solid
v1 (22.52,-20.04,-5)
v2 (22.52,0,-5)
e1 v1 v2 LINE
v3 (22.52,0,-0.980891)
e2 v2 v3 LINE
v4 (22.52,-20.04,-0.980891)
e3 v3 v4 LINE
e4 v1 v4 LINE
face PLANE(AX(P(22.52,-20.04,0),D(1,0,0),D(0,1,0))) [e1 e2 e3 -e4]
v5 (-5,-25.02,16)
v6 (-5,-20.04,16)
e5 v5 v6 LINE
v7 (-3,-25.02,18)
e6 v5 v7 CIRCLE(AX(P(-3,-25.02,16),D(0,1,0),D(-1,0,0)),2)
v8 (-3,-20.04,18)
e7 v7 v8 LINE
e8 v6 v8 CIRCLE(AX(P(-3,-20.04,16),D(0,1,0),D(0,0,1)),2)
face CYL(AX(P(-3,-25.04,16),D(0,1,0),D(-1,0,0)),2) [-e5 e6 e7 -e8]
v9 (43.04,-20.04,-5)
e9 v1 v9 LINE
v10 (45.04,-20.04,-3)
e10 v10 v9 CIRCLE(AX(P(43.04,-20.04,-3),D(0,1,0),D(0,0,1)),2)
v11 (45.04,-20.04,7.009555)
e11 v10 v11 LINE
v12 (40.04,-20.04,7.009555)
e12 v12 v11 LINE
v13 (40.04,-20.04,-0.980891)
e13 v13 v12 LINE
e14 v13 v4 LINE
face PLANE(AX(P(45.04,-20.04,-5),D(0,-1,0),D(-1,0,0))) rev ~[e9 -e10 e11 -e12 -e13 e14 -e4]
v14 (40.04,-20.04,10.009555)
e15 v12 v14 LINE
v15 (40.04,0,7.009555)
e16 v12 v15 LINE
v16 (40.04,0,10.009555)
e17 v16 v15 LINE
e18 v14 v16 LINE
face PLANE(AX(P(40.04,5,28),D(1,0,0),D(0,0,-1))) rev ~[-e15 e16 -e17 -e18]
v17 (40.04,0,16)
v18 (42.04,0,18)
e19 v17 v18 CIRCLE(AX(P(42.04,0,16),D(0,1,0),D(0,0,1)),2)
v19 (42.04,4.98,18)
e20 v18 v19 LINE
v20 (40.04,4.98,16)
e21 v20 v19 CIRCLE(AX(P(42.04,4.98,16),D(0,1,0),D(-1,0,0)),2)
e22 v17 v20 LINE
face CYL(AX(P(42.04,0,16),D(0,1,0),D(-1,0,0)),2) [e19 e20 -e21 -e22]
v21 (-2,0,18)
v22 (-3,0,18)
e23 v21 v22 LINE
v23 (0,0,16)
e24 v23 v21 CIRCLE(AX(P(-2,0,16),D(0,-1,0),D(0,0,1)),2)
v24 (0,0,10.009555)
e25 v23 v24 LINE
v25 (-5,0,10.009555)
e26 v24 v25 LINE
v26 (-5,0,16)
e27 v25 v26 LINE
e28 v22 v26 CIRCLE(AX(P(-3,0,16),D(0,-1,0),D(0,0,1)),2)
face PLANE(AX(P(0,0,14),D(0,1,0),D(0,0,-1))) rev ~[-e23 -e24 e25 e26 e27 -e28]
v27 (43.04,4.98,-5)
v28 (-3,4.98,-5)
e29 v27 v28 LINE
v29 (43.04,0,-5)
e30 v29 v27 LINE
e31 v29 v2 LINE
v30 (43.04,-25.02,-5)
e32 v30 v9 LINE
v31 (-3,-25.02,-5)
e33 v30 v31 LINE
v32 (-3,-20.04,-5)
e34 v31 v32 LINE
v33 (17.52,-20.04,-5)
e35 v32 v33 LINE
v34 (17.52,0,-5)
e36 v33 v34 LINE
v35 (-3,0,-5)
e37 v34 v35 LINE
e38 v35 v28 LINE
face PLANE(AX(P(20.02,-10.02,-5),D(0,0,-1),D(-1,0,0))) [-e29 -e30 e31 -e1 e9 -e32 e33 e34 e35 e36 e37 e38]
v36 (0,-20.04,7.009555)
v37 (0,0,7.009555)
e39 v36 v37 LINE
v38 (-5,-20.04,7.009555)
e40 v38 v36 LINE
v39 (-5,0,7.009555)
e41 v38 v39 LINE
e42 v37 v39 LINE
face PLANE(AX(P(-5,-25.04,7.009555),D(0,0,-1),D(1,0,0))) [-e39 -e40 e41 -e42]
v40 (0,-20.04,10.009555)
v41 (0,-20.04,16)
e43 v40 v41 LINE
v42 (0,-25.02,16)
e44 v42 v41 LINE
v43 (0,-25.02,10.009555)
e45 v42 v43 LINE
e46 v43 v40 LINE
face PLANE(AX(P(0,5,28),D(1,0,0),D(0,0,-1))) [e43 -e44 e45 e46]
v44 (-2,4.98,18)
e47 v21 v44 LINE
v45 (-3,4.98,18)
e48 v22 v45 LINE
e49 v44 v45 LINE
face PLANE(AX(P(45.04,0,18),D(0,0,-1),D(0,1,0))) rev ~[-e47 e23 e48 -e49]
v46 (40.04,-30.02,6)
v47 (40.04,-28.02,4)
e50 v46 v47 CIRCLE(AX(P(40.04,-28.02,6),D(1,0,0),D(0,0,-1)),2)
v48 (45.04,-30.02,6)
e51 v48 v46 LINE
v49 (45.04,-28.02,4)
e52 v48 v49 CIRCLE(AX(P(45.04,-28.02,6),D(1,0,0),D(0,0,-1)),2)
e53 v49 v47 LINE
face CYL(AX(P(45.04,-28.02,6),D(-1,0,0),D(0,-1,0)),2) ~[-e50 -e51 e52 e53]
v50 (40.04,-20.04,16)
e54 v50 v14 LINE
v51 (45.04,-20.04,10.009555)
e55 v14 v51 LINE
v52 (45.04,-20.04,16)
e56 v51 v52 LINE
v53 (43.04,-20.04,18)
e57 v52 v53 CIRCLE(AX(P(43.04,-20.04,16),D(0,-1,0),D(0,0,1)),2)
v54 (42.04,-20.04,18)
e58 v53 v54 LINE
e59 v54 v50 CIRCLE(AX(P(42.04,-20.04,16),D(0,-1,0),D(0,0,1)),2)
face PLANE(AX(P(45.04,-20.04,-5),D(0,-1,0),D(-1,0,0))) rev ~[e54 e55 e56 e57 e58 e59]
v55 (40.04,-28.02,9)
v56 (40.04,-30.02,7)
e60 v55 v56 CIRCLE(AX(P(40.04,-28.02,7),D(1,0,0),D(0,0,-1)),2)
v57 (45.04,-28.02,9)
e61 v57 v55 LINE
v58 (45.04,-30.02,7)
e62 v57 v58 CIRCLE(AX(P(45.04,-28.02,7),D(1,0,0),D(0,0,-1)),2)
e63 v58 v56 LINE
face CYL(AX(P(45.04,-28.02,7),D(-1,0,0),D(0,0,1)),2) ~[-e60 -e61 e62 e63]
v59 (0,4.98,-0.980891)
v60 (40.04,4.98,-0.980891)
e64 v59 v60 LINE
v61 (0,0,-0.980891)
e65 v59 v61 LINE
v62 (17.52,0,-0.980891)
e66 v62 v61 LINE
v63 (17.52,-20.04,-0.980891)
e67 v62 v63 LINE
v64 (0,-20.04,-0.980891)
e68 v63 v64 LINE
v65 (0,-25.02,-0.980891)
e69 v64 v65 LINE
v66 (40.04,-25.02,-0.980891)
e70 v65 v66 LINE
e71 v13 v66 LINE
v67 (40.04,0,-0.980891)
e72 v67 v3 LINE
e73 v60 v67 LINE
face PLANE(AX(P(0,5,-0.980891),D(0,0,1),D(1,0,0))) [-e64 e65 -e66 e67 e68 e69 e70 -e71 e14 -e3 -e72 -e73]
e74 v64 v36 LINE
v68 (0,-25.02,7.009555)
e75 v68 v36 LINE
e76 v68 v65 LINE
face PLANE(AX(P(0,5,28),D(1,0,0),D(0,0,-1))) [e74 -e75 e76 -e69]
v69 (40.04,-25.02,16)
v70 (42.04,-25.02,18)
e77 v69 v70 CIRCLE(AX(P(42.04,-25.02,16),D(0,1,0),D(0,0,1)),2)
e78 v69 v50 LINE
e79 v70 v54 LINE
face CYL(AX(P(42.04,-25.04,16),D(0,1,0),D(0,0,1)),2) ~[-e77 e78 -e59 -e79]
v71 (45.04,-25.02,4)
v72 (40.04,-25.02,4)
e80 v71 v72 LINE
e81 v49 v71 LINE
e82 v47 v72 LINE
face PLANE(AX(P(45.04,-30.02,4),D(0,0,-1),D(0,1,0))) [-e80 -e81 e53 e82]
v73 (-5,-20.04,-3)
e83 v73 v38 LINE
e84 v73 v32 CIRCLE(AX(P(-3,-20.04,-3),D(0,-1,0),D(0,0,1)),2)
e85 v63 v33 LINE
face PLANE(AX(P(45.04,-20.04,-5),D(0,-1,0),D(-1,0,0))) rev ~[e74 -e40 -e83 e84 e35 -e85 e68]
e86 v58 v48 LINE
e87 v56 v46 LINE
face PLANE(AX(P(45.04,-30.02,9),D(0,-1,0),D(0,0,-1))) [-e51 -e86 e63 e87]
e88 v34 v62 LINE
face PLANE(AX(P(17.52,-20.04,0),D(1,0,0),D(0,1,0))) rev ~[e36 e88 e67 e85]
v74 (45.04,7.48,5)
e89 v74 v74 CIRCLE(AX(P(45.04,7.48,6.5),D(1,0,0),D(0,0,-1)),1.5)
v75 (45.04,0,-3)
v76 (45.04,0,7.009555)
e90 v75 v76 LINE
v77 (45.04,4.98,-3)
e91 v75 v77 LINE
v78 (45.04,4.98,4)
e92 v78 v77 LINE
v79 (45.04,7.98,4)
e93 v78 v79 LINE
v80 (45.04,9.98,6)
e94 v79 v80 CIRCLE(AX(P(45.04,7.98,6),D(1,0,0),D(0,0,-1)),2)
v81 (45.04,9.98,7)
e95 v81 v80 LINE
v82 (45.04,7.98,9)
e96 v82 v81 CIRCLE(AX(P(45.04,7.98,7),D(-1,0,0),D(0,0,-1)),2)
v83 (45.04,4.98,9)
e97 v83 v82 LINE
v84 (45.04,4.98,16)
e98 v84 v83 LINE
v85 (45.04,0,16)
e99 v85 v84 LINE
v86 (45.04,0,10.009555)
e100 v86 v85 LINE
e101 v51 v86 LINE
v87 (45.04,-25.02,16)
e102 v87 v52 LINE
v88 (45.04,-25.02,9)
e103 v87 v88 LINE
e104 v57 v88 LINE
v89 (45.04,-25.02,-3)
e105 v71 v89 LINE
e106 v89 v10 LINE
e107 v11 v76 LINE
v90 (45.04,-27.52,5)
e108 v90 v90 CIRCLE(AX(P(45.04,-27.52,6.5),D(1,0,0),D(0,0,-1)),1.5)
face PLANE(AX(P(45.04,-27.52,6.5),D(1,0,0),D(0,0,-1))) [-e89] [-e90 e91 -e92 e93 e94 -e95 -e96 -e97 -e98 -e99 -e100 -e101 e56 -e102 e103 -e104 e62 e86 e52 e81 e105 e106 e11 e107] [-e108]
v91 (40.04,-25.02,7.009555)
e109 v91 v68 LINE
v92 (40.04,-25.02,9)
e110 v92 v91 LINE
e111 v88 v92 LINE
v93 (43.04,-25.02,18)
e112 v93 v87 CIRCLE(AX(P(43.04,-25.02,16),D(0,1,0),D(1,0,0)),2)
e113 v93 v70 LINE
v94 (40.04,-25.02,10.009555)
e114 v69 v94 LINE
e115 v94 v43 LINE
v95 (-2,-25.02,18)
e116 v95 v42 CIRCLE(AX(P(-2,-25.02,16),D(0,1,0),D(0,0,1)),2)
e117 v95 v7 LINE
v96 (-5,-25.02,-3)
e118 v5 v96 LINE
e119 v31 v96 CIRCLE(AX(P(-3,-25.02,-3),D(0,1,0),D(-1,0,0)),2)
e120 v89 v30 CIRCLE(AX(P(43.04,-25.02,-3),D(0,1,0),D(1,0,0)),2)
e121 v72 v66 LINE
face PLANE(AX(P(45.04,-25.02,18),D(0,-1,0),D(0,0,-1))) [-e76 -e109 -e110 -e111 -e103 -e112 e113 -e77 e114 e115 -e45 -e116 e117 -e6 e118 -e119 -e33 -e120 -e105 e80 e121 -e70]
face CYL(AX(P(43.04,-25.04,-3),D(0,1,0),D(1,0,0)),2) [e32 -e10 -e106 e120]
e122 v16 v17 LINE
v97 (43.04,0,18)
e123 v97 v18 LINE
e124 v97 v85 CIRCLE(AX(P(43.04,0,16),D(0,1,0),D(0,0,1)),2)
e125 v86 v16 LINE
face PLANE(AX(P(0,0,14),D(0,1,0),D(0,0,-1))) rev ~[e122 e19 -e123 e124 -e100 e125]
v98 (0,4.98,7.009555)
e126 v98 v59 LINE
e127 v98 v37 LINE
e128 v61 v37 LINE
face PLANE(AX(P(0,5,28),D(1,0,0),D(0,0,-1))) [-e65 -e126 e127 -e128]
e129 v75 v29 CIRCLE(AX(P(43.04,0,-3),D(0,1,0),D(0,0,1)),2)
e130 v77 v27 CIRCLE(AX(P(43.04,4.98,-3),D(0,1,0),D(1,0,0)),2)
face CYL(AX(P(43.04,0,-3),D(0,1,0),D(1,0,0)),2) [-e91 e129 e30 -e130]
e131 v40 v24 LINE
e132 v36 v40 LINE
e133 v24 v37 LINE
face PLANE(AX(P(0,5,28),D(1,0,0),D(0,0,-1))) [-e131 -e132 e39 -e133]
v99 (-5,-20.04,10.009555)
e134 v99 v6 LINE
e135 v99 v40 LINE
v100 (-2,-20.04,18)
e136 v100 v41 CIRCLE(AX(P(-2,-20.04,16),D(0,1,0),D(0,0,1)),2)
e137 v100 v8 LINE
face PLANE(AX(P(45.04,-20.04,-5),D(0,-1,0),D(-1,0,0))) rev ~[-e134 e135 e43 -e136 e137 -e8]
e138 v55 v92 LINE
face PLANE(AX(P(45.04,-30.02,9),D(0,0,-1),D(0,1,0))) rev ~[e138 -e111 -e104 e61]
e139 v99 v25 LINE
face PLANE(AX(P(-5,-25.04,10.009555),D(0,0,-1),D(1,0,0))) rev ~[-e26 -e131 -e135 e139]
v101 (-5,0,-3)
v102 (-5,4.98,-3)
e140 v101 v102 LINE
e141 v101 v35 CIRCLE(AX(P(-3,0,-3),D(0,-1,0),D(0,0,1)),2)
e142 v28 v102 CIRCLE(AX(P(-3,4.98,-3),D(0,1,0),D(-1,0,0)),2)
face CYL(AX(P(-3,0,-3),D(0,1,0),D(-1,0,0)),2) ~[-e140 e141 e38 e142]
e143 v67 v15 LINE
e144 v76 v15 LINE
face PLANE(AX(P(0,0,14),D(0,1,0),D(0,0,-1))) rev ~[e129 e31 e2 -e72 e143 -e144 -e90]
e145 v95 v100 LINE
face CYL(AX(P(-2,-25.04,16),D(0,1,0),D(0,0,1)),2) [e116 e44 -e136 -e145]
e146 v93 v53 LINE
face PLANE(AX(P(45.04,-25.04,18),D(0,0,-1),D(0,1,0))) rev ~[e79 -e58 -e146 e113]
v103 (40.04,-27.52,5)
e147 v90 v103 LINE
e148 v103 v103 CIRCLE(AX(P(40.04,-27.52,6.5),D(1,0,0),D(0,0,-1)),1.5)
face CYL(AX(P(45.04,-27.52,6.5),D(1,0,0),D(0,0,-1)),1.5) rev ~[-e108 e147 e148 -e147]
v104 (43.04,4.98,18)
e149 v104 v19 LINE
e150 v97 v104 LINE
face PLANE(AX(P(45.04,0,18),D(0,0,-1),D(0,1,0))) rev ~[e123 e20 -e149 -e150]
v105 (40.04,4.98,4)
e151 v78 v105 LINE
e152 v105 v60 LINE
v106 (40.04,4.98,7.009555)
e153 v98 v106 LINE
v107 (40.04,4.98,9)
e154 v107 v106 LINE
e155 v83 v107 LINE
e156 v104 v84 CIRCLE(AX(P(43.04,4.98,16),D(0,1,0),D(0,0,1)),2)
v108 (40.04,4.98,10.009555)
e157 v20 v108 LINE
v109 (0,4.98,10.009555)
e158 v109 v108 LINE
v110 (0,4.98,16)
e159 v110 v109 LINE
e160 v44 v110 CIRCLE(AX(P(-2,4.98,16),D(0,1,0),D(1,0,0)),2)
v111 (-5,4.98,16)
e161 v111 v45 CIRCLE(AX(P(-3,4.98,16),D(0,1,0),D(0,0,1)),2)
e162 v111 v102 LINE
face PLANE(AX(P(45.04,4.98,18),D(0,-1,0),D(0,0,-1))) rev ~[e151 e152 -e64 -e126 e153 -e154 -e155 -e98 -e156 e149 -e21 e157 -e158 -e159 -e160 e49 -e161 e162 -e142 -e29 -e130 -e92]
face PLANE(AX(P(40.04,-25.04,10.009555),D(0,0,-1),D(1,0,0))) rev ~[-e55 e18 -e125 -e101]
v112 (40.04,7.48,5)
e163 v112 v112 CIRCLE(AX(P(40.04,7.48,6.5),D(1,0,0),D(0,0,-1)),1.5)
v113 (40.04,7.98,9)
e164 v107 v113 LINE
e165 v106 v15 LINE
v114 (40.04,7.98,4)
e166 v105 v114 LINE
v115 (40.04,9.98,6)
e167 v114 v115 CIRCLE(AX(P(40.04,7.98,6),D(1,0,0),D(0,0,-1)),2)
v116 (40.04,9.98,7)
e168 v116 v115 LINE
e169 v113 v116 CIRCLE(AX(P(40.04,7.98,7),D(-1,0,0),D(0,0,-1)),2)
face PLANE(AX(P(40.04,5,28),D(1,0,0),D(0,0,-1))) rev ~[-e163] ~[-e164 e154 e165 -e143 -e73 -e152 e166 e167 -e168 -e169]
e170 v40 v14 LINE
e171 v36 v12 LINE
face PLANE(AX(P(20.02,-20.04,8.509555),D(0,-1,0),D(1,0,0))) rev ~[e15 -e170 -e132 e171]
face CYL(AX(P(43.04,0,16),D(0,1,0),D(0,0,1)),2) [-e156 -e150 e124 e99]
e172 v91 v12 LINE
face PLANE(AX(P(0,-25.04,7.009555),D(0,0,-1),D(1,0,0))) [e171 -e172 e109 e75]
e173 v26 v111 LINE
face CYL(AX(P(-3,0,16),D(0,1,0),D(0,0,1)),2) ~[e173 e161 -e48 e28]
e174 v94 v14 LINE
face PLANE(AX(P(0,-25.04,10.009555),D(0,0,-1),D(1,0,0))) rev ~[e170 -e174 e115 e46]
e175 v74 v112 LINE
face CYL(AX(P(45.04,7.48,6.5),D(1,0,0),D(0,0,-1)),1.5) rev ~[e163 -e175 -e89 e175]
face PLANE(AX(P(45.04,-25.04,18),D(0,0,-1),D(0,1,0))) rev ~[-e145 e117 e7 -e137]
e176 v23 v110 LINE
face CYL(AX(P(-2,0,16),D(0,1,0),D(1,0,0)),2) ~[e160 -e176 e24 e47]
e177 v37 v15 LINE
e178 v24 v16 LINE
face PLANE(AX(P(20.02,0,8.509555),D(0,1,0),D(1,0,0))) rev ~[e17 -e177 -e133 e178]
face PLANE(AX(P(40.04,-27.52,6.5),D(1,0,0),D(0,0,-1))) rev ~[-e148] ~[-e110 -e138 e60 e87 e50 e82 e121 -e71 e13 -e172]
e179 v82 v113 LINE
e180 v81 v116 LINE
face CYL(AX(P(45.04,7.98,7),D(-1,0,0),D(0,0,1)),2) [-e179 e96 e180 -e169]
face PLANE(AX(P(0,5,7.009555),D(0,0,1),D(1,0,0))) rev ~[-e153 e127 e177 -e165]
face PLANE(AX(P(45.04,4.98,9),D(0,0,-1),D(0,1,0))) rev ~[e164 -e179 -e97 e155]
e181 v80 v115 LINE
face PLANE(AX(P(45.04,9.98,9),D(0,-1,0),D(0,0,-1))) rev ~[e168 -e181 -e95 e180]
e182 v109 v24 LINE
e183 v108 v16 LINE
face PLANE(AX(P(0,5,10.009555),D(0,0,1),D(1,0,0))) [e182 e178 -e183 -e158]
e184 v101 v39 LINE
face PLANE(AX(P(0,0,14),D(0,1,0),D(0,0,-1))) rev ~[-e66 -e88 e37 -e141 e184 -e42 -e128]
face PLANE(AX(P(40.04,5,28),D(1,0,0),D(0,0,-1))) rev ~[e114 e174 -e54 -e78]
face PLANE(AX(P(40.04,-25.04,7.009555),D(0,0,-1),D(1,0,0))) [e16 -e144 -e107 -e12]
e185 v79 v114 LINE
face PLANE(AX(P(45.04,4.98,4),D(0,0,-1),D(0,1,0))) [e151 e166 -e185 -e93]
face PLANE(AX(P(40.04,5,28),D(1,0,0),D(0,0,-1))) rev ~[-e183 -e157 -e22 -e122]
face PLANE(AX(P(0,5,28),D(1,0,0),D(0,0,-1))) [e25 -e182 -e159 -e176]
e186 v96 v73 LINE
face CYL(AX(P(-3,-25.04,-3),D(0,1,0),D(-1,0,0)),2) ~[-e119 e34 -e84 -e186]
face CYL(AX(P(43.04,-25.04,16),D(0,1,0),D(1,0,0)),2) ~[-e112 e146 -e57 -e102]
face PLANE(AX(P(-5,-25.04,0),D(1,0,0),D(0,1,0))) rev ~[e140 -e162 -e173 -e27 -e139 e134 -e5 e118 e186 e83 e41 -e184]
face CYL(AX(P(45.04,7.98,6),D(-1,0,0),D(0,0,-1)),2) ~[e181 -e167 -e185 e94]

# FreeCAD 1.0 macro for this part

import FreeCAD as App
import Part
import Sketcher
from FreeCAD import Vector
Q = App.Units.Quantity


def edges_at(feature, points):
    """Names of the edges that pass closest to the given points."""
    edges = feature.Shape.Edges
    near = lambda p: min(range(len(edges)), key=lambda i: edges[i].distToShape(Part.Vertex(*p))[0])
    return sorted({f"Edge{near(p) + 1}" for p in points})


def add_polygon(sketch, points):
    """Adds a closed chain of lines whose ends are joined by coincident constraints."""
    first, n = sketch.GeometryCount, len(points)
    for a, b in zip(points, points[1:] + points[:1]):
        sketch.addGeometry(Part.LineSegment(App.Vector(*a, 0), App.Vector(*b, 0)), False)
    for i in range(n):
        sketch.addConstraint(Sketcher.Constraint("Coincident", first + i, 2, first + (i + 1) % n, 1))

doc = App.newDocument("Part")
body = doc.addObject("PartDesign::Body", "Body")

# Sketch on XY plane
sketch1 = body.newObject("Sketcher::SketchObject", "Sketch")
sketch1.AttachmentSupport = (doc.getObject("XY_Plane"), [""])
sketch1.MapMode = "FlatFace"
add_polygon(sketch1, [(-5, 5), (-5, -25), (45, -25), (45, 5)])  # lines 0-3
add_polygon(sketch1, [(18, -20), (0, -20), (0, 0), (18, 0)])  # lines 4-7
add_polygon(sketch1, [(40, -20), (23, -20), (23, 0), (40, 0)])  # lines 8-11
sketch1.addConstraint(Sketcher.Constraint("Vertical", 0))
sketch1.addConstraint(Sketcher.Constraint("Horizontal", 1))
sketch1.addConstraint(Sketcher.Constraint("Vertical", 2))
sketch1.addConstraint(Sketcher.Constraint("Horizontal", 3))
sketch1.addConstraint(Sketcher.Constraint("Horizontal", 4))
sketch1.addConstraint(Sketcher.Constraint("Vertical", 5))
sketch1.addConstraint(Sketcher.Constraint("Horizontal", 6))
sketch1.addConstraint(Sketcher.Constraint("Vertical", 7))
sketch1.addConstraint(Sketcher.Constraint("Horizontal", 8))
sketch1.addConstraint(Sketcher.Constraint("Vertical", 9))
sketch1.addConstraint(Sketcher.Constraint("Horizontal", 10))
sketch1.addConstraint(Sketcher.Constraint("Vertical", 11))
sketch1.addConstraint(Sketcher.Constraint("Coincident", 5, 2, -1, 1))
sketch1.addConstraint(Sketcher.Constraint("PointOnObject", 9, 2, -1))
sketch1.addConstraint(Sketcher.Constraint("Horizontal", 7, 2, 8, 2))
sketch1.addConstraint(Sketcher.Constraint("Equal", 6, 8))
sketch1.addConstraint(Sketcher.Constraint("DistanceX", 0, 2, -1, 1, Q("5 mm")))
sketch1.addConstraint(Sketcher.Constraint("DistanceY", -1, 1, 2, 2, Q("5 mm")))
sketch1.addConstraint(Sketcher.Constraint("DistanceY", 0, 2, 4, 2, Q("5 mm")))
sketch1.addConstraint(Sketcher.Constraint("DistanceX", 7, 2, 8, 2, Q("5 mm")))
sketch1.addConstraint(Sketcher.Constraint("DistanceX", 10, 2, 2, 2, Q("5 mm")))
sketch1.addConstraint(Sketcher.Constraint("DistanceX", 1, 1, 1, 2, Q("50.04 mm")))
sketch1.addConstraint(Sketcher.Constraint("DistanceY", 0, 2, 0, 1, Q("30.04 mm")))
pad1 = body.newObject("PartDesign::Pad", "Pad")
pad1.Profile = sketch1
pad1.Length = 28

# Sketch on XY plane
sketch2 = body.newObject("Sketcher::SketchObject", "Sketch001")
sketch2.AttachmentSupport = (doc.getObject("XY_Plane"), [""])
sketch2.MapMode = "FlatFace"
add_polygon(sketch2, [(45, 5), (45, -25), (-5, -25), (-5, 5)])  # lines 0-3
add_polygon(sketch2, [(23, -20), (40, -20), (40, 0), (23, 0)])  # lines 4-7
add_polygon(sketch2, [(0, -20), (18, -20), (18, 0), (0, 0)])  # lines 8-11
sketch2.addConstraint(Sketcher.Constraint("Vertical", 0))
sketch2.addConstraint(Sketcher.Constraint("Horizontal", 1))
sketch2.addConstraint(Sketcher.Constraint("Vertical", 2))
sketch2.addConstraint(Sketcher.Constraint("Horizontal", 3))
sketch2.addConstraint(Sketcher.Constraint("Horizontal", 4))
sketch2.addConstraint(Sketcher.Constraint("Vertical", 5))
sketch2.addConstraint(Sketcher.Constraint("Horizontal", 6))
sketch2.addConstraint(Sketcher.Constraint("Vertical", 7))
sketch2.addConstraint(Sketcher.Constraint("Horizontal", 8))
sketch2.addConstraint(Sketcher.Constraint("Vertical", 9))
sketch2.addConstraint(Sketcher.Constraint("Horizontal", 10))
sketch2.addConstraint(Sketcher.Constraint("Vertical", 11))
sketch2.addConstraint(Sketcher.Constraint("Coincident", 10, 2, -1, 1))
sketch2.addConstraint(Sketcher.Constraint("PointOnObject", 5, 2, -1))
sketch2.addConstraint(Sketcher.Constraint("Horizontal", 7, 2, 8, 2))
sketch2.addConstraint(Sketcher.Constraint("Equal", 6, 8))
sketch2.addConstraint(Sketcher.Constraint("DistanceX", 1, 2, -1, 1, Q("5 mm")))
sketch2.addConstraint(Sketcher.Constraint("DistanceY", -1, 1, 2, 2, Q("5 mm")))
sketch2.addConstraint(Sketcher.Constraint("DistanceX", 4, 2, 0, 2, Q("5 mm")))
sketch2.addConstraint(Sketcher.Constraint("DistanceY", 0, 2, 4, 2, Q("5 mm")))
sketch2.addConstraint(Sketcher.Constraint("DistanceX", 8, 2, 7, 2, Q("5 mm")))
sketch2.addConstraint(Sketcher.Constraint("DistanceX", 1, 2, 1, 1, Q("50.04 mm")))
sketch2.addConstraint(Sketcher.Constraint("DistanceY", 0, 2, 0, 1, Q("30.04 mm")))
pad2 = body.newObject("PartDesign::Pad", "Pad001")
pad2.Profile = sketch2
pad2.Length = 5
pad2.Reversed = True

# Sketch on XY plane
sketch3 = body.newObject("Sketcher::SketchObject", "Sketch002")
sketch3.AttachmentSupport = (doc.getObject("XY_Plane"), [""])
sketch3.MapMode = "FlatFace"
sketch3.AttachmentOffset = App.Placement(Vector(0, 0, 28), App.Rotation())
add_polygon(sketch3, [(18, 0), (18, -20), (23, -20), (23, 0)])  # lines 0-3
sketch3.addConstraint(Sketcher.Constraint("Vertical", 0))
sketch3.addConstraint(Sketcher.Constraint("Horizontal", 1))
sketch3.addConstraint(Sketcher.Constraint("Vertical", 2))
sketch3.addConstraint(Sketcher.Constraint("Horizontal", 3))
sketch3.addConstraint(Sketcher.Constraint("PointOnObject", 2, 2, -1))
sketch3.addConstraint(Sketcher.Constraint("DistanceX", 1, 1, 1, 2, Q("5 mm")))
sketch3.addConstraint(Sketcher.Constraint("DistanceY", 0, 2, 0, 1, Q("20.04 mm")))
sketch3.addConstraint(Sketcher.Constraint("DistanceX", -1, 1, 0, 2, Q("17.52 mm")))
pocket1 = body.newObject("PartDesign::Pocket", "Pocket")
pocket1.Profile = sketch3
pocket1.Length = 27

# Sketch on XY plane
sketch4 = body.newObject("Sketcher::SketchObject", "Sketch003")
sketch4.AttachmentSupport = (doc.getObject("XY_Plane"), [""])
sketch4.MapMode = "FlatFace"
sketch4.AttachmentOffset = App.Placement(Vector(0, 0, -5), App.Rotation())
add_polygon(sketch4, [(45, 0), (45, -20), (40, -20), (40, 0)])  # lines 0-3
add_polygon(sketch4, [(0, 0), (0, -20), (-5, -20), (-5, 0)])  # lines 4-7
sketch4.addConstraint(Sketcher.Constraint("Vertical", 0))
sketch4.addConstraint(Sketcher.Constraint("Horizontal", 1))
sketch4.addConstraint(Sketcher.Constraint("Vertical", 2))
sketch4.addConstraint(Sketcher.Constraint("Horizontal", 3))
sketch4.addConstraint(Sketcher.Constraint("Vertical", 4))
sketch4.addConstraint(Sketcher.Constraint("Horizontal", 5))
sketch4.addConstraint(Sketcher.Constraint("Vertical", 6))
sketch4.addConstraint(Sketcher.Constraint("Horizontal", 7))
sketch4.addConstraint(Sketcher.Constraint("Coincident", 7, 2, -1, 1))
sketch4.addConstraint(Sketcher.Constraint("PointOnObject", 2, 2, -1))
sketch4.addConstraint(Sketcher.Constraint("Horizontal", 1, 2, 4, 2))
sketch4.addConstraint(Sketcher.Constraint("Equal", 3, 5))
sketch4.addConstraint(Sketcher.Constraint("DistanceX", 1, 2, 1, 1, Q("5 mm")))
sketch4.addConstraint(Sketcher.Constraint("DistanceY", 0, 2, 0, 1, Q("20.04 mm")))
sketch4.addConstraint(Sketcher.Constraint("DistanceX", -1, 1, 0, 2, Q("45.04 mm")))
pocket2 = body.newObject("PartDesign::Pocket", "Pocket001")
pocket2.Profile = sketch4
pocket2.Length = 27
pocket2.Reversed = True

# Sketch on XZ plane
sketch5 = body.newObject("Sketcher::SketchObject", "Sketch004")
sketch5.AttachmentSupport = (doc.getObject("XZ_Plane"), [""])
sketch5.MapMode = "FlatFace"
sketch5.AttachmentOffset = App.Placement(Vector(0, 0, -5), App.Rotation())
add_polygon(sketch5, [(0, -1), (0, 28), (40, 28), (40, -1)])  # lines 0-3
sketch5.addConstraint(Sketcher.Constraint("Vertical", 0))
sketch5.addConstraint(Sketcher.Constraint("Horizontal", 1))
sketch5.addConstraint(Sketcher.Constraint("Vertical", 2))
sketch5.addConstraint(Sketcher.Constraint("Horizontal", 3))
sketch5.addConstraint(Sketcher.Constraint("PointOnObject", 0, 2, -2))
sketch5.addConstraint(Sketcher.Constraint("DistanceY", -1, 1, 0, 2, Q("28 mm")))
sketch5.addConstraint(Sketcher.Constraint("DistanceX", 1, 1, 1, 2, Q("40.04 mm")))
sketch5.addConstraint(Sketcher.Constraint("DistanceY", 0, 1, 0, 2, Q("28.980891 mm")))
pocket3 = body.newObject("PartDesign::Pocket", "Pocket002")
pocket3.Profile = sketch5
pocket3.Length = 47
pocket3.Reversed = True

# Sketch on YZ plane
sketch6 = body.newObject("Sketcher::SketchObject", "Sketch005")
sketch6.AttachmentSupport = (doc.getObject("YZ_Plane"), [""])
sketch6.MapMode = "FlatFace"
add_polygon(sketch6, [(5, 14), (0, 14), (0, 9), (5, 9)])  # lines 0-3
add_polygon(sketch6, [(-20, 14), (-25, 14), (-25, 9), (-20, 9)])  # lines 4-7
sketch6.addConstraint(Sketcher.Constraint("Horizontal", 0))
sketch6.addConstraint(Sketcher.Constraint("Vertical", 1))
sketch6.addConstraint(Sketcher.Constraint("Horizontal", 2))
sketch6.addConstraint(Sketcher.Constraint("Vertical", 3))
sketch6.addConstraint(Sketcher.Constraint("Horizontal", 4))
sketch6.addConstraint(Sketcher.Constraint("Vertical", 5))
sketch6.addConstraint(Sketcher.Constraint("Horizontal", 6))
sketch6.addConstraint(Sketcher.Constraint("Vertical", 7))
sketch6.addConstraint(Sketcher.Constraint("PointOnObject", 0, 2, -2))
sketch6.addConstraint(Sketcher.Constraint("Horizontal", 3, 2, 4, 2))
sketch6.addConstraint(Sketcher.Constraint("Horizontal", 2, 2, 5, 2))
sketch6.addConstraint(Sketcher.Constraint("Equal", 2, 4))
sketch6.addConstraint(Sketcher.Constraint("Equal", 6, 1))
sketch6.addConstraint(Sketcher.Constraint("DistanceX", 0, 2, 0, 1, Q("5 mm")))
sketch6.addConstraint(Sketcher.Constraint("DistanceY", -1, 1, 0, 2, Q("14 mm")))
sketch6.addConstraint(Sketcher.Constraint("DistanceX", 4, 2, -1, 1, Q("25.04 mm")))
pad3 = body.newObject("PartDesign::Pad", "Pad002")
pad3.Profile = sketch6
pad3.Length = 45

# Sketch on YZ plane
sketch7 = body.newObject("Sketcher::SketchObject", "Sketch006")
sketch7.AttachmentSupport = (doc.getObject("YZ_Plane"), [""])
sketch7.MapMode = "FlatFace"
sketch7.AttachmentOffset = App.Placement(Vector(0, 0, 45.04), App.Rotation())
add_polygon(sketch7, [(-25, 28), (-25, 18), (-20, 18), (-20, 22), (0, 22), (0, 18), (5, 18), (5, 28)])  # lines 0-7
sketch7.addConstraint(Sketcher.Constraint("Vertical", 0))
sketch7.addConstraint(Sketcher.Constraint("Horizontal", 1))
sketch7.addConstraint(Sketcher.Constraint("Vertical", 2))
sketch7.addConstraint(Sketcher.Constraint("Horizontal", 3))
sketch7.addConstraint(Sketcher.Constraint("Vertical", 4))
sketch7.addConstraint(Sketcher.Constraint("Horizontal", 5))
sketch7.addConstraint(Sketcher.Constraint("Vertical", 6))
sketch7.addConstraint(Sketcher.Constraint("Horizontal", 7))
sketch7.addConstraint(Sketcher.Constraint("PointOnObject", 3, 2, -2))
sketch7.addConstraint(Sketcher.Constraint("Horizontal", 1, 2, 4, 2))
sketch7.addConstraint(Sketcher.Constraint("Equal", 1, 5))
sketch7.addConstraint(Sketcher.Constraint("DistanceX", 1, 1, 1, 2, Q("5 mm")))
sketch7.addConstraint(Sketcher.Constraint("DistanceY", 0, 2, 0, 1, Q("10 mm")))
sketch7.addConstraint(Sketcher.Constraint("DistanceY", 2, 1, 2, 2, Q("4 mm")))
sketch7.addConstraint(Sketcher.Constraint("DistanceY", -1, 1, 0, 2, Q("18 mm")))
sketch7.addConstraint(Sketcher.Constraint("DistanceX", 3, 1, 3, 2, Q("20.04 mm")))
pocket4 = body.newObject("PartDesign::Pocket", "Pocket003")
pocket4.Profile = sketch7
pocket4.Length = 66

# Sketch on XZ plane
sketch8 = body.newObject("Sketcher::SketchObject", "Sketch007")
sketch8.AttachmentSupport = (doc.getObject("XZ_Plane"), [""])
sketch8.MapMode = "FlatFace"
sketch8.AttachmentOffset = App.Placement(Vector(0, 0, 25.04), App.Rotation())
add_polygon(sketch8, [(-5, 10), (-5, 7), (0, 7), (0, 10)])  # lines 0-3
add_polygon(sketch8, [(40, 10), (40, 7), (45, 7), (45, 10)])  # lines 4-7
sketch8.addConstraint(Sketcher.Constraint("Vertical", 0))
sketch8.addConstraint(Sketcher.Constraint("Horizontal", 1))
sketch8.addConstraint(Sketcher.Constraint("Vertical", 2))
sketch8.addConstraint(Sketcher.Constraint("Horizontal", 3))
sketch8.addConstraint(Sketcher.Constraint("Vertical", 4))
sketch8.addConstraint(Sketcher.Constraint("Horizontal", 5))
sketch8.addConstraint(Sketcher.Constraint("Vertical", 6))
sketch8.addConstraint(Sketcher.Constraint("Horizontal", 7))
sketch8.addConstraint(Sketcher.Constraint("PointOnObject", 1, 2, -2))
sketch8.addConstraint(Sketcher.Constraint("Horizontal", 1, 2, 4, 2))
sketch8.addConstraint(Sketcher.Constraint("Horizontal", 3, 2, 6, 2))
sketch8.addConstraint(Sketcher.Constraint("Equal", 3, 5))
sketch8.addConstraint(Sketcher.Constraint("DistanceX", 1, 1, 1, 2, Q("5 mm")))
sketch8.addConstraint(Sketcher.Constraint("DistanceY", 0, 2, 0, 1, Q("3 mm")))
sketch8.addConstraint(Sketcher.Constraint("DistanceX", -1, 1, 4, 2, Q("40.04 mm")))
sketch8.addConstraint(Sketcher.Constraint("DistanceY", -1, 1, 0, 2, Q("7.009555 mm")))
pad4 = body.newObject("PartDesign::Pad", "Pad003")
pad4.Profile = sketch8
pad4.Length = 29
pad4.Reversed = True

# Sketch on XZ plane
sketch9 = body.newObject("Sketcher::SketchObject", "Sketch008")
sketch9.AttachmentSupport = (doc.getObject("XZ_Plane"), [""])
sketch9.MapMode = "FlatFace"
sketch9.AttachmentOffset = App.Placement(Vector(0, 0, 25.04), App.Rotation())
add_polygon(sketch9, [(40, 9), (40, 14), (0, 14), (0, 9)])  # lines 0-3
sketch9.addConstraint(Sketcher.Constraint("Vertical", 0))
sketch9.addConstraint(Sketcher.Constraint("Horizontal", 1))
sketch9.addConstraint(Sketcher.Constraint("Vertical", 2))
sketch9.addConstraint(Sketcher.Constraint("Horizontal", 3))
sketch9.addConstraint(Sketcher.Constraint("PointOnObject", 1, 2, -2))
sketch9.addConstraint(Sketcher.Constraint("DistanceY", 0, 1, 0, 2, Q("5 mm")))
sketch9.addConstraint(Sketcher.Constraint("DistanceY", -1, 1, 0, 2, Q("14 mm")))
sketch9.addConstraint(Sketcher.Constraint("DistanceX", 1, 2, 1, 1, Q("40.04 mm")))
pocket5 = body.newObject("PartDesign::Pocket", "Pocket004")
pocket5.Profile = sketch9
pocket5.Length = 51

# Sketch on XZ plane
sketch10 = body.newObject("Sketcher::SketchObject", "Sketch009")
sketch10.AttachmentSupport = (doc.getObject("XZ_Plane"), [""])
sketch10.MapMode = "FlatFace"
sketch10.AttachmentOffset = App.Placement(Vector(0, 0, 25.04), App.Rotation())
add_polygon(sketch10, [(0, 10), (0, 7), (40, 7), (40, 10)])  # lines 0-3
sketch10.addConstraint(Sketcher.Constraint("Vertical", 0))
sketch10.addConstraint(Sketcher.Constraint("Horizontal", 1))
sketch10.addConstraint(Sketcher.Constraint("Vertical", 2))
sketch10.addConstraint(Sketcher.Constraint("Horizontal", 3))
sketch10.addConstraint(Sketcher.Constraint("PointOnObject", 0, 2, -2))
sketch10.addConstraint(Sketcher.Constraint("DistanceY", 0, 2, 0, 1, Q("3 mm")))
sketch10.addConstraint(Sketcher.Constraint("DistanceX", 1, 1, 1, 2, Q("40.04 mm")))
sketch10.addConstraint(Sketcher.Constraint("DistanceY", -1, 1, 0, 2, Q("7.009555 mm")))
pad5 = body.newObject("PartDesign::Pad", "Pad004")
pad5.Profile = sketch10
pad5.Length = 5
pad5.Reversed = True

# Sketch on XZ plane
sketch11 = body.newObject("Sketcher::SketchObject", "Sketch010")
sketch11.AttachmentSupport = (doc.getObject("XZ_Plane"), [""])
sketch11.MapMode = "FlatFace"
sketch11.AttachmentOffset = App.Placement(Vector(0, 0, -5), App.Rotation())
add_polygon(sketch11, [(0, 7), (0, 10), (40, 10), (40, 7)])  # lines 0-3
sketch11.addConstraint(Sketcher.Constraint("Vertical", 0))
sketch11.addConstraint(Sketcher.Constraint("Horizontal", 1))
sketch11.addConstraint(Sketcher.Constraint("Vertical", 2))
sketch11.addConstraint(Sketcher.Constraint("Horizontal", 3))
sketch11.addConstraint(Sketcher.Constraint("PointOnObject", 0, 2, -2))
sketch11.addConstraint(Sketcher.Constraint("DistanceY", 0, 1, 0, 2, Q("3 mm")))
sketch11.addConstraint(Sketcher.Constraint("DistanceX", 1, 1, 1, 2, Q("40.04 mm")))
sketch11.addConstraint(Sketcher.Constraint("DistanceY", -1, 1, 0, 2, Q("10.009555 mm")))
pad6 = body.newObject("PartDesign::Pad", "Pad005")
pad6.Profile = sketch11
pad6.Length = 5
doc.recompute()

fillet = body.newObject("PartDesign::Fillet", "Fillet")
fillet.Base = (pad6, edges_at(pad6, [
    (40.04, 2.5, 18),
    (0, 2.5, 18),
    (-5, 2.5, 18),
    (40.04, -22.54, 18),
    (0, -22.54, 18),
    (-5, -22.54, 18),
    (45.04, -22.54, 18),
    (45.04, 2.5, 18),
    (45.04, 2.5, -5),
    (-5, -22.54, -5),
    (45.04, -22.54, -5),
    (-5, 2.5, -5),
]))
fillet.Radius = 2

# Sketch on YZ plane
sketch12 = body.newObject("Sketcher::SketchObject", "Sketch011")
sketch12.AttachmentSupport = (doc.getObject("YZ_Plane"), [""])
sketch12.MapMode = "FlatFace"
sketch12.AttachmentOffset = App.Placement(Vector(0, 0, 45.04), App.Rotation())
add_polygon(sketch12, [(-25.02, 18), (-25.04, 18), (-25.04, -5), (-25.02, -5)])  # lines 0-3
add_polygon(sketch12, [(5, 18), (4.98, 18), (4.98, -5), (5, -5)])  # lines 4-7
sketch12.addConstraint(Sketcher.Constraint("Horizontal", 0))
sketch12.addConstraint(Sketcher.Constraint("Vertical", 1))
sketch12.addConstraint(Sketcher.Constraint("Horizontal", 2))
sketch12.addConstraint(Sketcher.Constraint("Vertical", 3))
sketch12.addConstraint(Sketcher.Constraint("Horizontal", 4))
sketch12.addConstraint(Sketcher.Constraint("Vertical", 5))
sketch12.addConstraint(Sketcher.Constraint("Horizontal", 6))
sketch12.addConstraint(Sketcher.Constraint("Vertical", 7))
sketch12.addConstraint(Sketcher.Constraint("Horizontal", 3, 2, 4, 2))
sketch12.addConstraint(Sketcher.Constraint("Horizontal", 2, 2, 5, 2))
sketch12.addConstraint(Sketcher.Constraint("Equal", 2, 4))
sketch12.addConstraint(Sketcher.Constraint("DistanceY", 1, 2, 1, 1, Q("23 mm")))
sketch12.addConstraint(Sketcher.Constraint("DistanceY", -1, 1, 0, 2, Q("18 mm")))
sketch12.addConstraint(Sketcher.Constraint("DistanceX", -1, 1, 6, 2, Q("5 mm")))
sketch12.addConstraint(Sketcher.Constraint("DistanceX", 3, 2, 4, 2, Q("30 mm")))
sketch12.addConstraint(Sketcher.Constraint("DistanceX", 0, 2, 0, 1, Q("0.02 mm")))
pocket6 = body.newObject("PartDesign::Pocket", "Pocket005")
pocket6.Profile = sketch12
pocket6.Length = 87

# Sketch on YZ plane
sketch13 = body.newObject("Sketcher::SketchObject", "Sketch012")
sketch13.AttachmentSupport = (doc.getObject("YZ_Plane"), [""])
sketch13.MapMode = "FlatFace"
sketch13.AttachmentOffset = App.Placement(Vector(0, 0, 45.04), App.Rotation())
add_polygon(sketch13, [(-25, 9), (-30, 9), (-30, 4), (-25, 4)])  # lines 0-3
sketch13.addGeometry(Part.Circle(Vector(-27.5, 6.5, 0), Vector(0, 0, 1), 1.5), False)  # 4
add_polygon(sketch13, [(10, 9), (5, 9), (5, 4), (10, 4)])  # lines 5-8
sketch13.addGeometry(Part.Circle(Vector(7.5, 6.5, 0), Vector(0, 0, 1), 1.5), False)  # 9
sketch13.addConstraint(Sketcher.Constraint("Horizontal", 0))
sketch13.addConstraint(Sketcher.Constraint("Vertical", 1))
sketch13.addConstraint(Sketcher.Constraint("Horizontal", 2))
sketch13.addConstraint(Sketcher.Constraint("Vertical", 3))
sketch13.addConstraint(Sketcher.Constraint("Horizontal", 5))
sketch13.addConstraint(Sketcher.Constraint("Vertical", 6))
sketch13.addConstraint(Sketcher.Constraint("Horizontal", 7))
sketch13.addConstraint(Sketcher.Constraint("Vertical", 8))
sketch13.addConstraint(Sketcher.Constraint("Equal", 4, 9))
sketch13.addConstraint(Sketcher.Constraint("Horizontal", 4, 3, 9, 3))
sketch13.addConstraint(Sketcher.Constraint("Horizontal", 3, 2, 5, 2))
sketch13.addConstraint(Sketcher.Constraint("Horizontal", 2, 2, 6, 2))
sketch13.addConstraint(Sketcher.Constraint("Equal", 2, 5))
sketch13.addConstraint(Sketcher.Constraint("Equal", 7, 1))
sketch13.addConstraint(Sketcher.Constraint("Diameter", 4, Q("3 mm")))
sketch13.addConstraint(Sketcher.Constraint("DistanceX", 0, 2, 0, 1, Q("5 mm")))
sketch13.addConstraint(Sketcher.Constraint("DistanceY", -1, 1, 0, 2, Q("9 mm")))
sketch13.addConstraint(Sketcher.Constraint("DistanceX", 4, 3, 9, 3, Q("35 mm")))
sketch13.addConstraint(Sketcher.Constraint("DistanceX", 3, 2, 5, 2, Q("30 mm")))
sketch13.addConstraint(Sketcher.Constraint("DistanceY", -1, 1, 4, 3, Q("6.5 mm")))
sketch13.addConstraint(Sketcher.Constraint("DistanceX", 0, 2, 4, 3, Q("2.5 mm")))
sketch13.addConstraint(Sketcher.Constraint("DistanceX", 4, 3, -1, 1, Q("27.52 mm")))
pad7 = body.newObject("PartDesign::Pad", "Pad006")
pad7.Profile = sketch13
pad7.Length = 5
pad7.Reversed = True
doc.recompute()

fillet2 = body.newObject("PartDesign::Fillet", "Fillet001")
fillet2.Base = (pad7, edges_at(pad7, [
    (42.54, -30.02, 4),
    (42.54, -30.02, 9),
    (42.54, 9.98, 4),
    (42.54, 9.98, 9),
]))
fillet2.Radius = 2

doc.recompute()
